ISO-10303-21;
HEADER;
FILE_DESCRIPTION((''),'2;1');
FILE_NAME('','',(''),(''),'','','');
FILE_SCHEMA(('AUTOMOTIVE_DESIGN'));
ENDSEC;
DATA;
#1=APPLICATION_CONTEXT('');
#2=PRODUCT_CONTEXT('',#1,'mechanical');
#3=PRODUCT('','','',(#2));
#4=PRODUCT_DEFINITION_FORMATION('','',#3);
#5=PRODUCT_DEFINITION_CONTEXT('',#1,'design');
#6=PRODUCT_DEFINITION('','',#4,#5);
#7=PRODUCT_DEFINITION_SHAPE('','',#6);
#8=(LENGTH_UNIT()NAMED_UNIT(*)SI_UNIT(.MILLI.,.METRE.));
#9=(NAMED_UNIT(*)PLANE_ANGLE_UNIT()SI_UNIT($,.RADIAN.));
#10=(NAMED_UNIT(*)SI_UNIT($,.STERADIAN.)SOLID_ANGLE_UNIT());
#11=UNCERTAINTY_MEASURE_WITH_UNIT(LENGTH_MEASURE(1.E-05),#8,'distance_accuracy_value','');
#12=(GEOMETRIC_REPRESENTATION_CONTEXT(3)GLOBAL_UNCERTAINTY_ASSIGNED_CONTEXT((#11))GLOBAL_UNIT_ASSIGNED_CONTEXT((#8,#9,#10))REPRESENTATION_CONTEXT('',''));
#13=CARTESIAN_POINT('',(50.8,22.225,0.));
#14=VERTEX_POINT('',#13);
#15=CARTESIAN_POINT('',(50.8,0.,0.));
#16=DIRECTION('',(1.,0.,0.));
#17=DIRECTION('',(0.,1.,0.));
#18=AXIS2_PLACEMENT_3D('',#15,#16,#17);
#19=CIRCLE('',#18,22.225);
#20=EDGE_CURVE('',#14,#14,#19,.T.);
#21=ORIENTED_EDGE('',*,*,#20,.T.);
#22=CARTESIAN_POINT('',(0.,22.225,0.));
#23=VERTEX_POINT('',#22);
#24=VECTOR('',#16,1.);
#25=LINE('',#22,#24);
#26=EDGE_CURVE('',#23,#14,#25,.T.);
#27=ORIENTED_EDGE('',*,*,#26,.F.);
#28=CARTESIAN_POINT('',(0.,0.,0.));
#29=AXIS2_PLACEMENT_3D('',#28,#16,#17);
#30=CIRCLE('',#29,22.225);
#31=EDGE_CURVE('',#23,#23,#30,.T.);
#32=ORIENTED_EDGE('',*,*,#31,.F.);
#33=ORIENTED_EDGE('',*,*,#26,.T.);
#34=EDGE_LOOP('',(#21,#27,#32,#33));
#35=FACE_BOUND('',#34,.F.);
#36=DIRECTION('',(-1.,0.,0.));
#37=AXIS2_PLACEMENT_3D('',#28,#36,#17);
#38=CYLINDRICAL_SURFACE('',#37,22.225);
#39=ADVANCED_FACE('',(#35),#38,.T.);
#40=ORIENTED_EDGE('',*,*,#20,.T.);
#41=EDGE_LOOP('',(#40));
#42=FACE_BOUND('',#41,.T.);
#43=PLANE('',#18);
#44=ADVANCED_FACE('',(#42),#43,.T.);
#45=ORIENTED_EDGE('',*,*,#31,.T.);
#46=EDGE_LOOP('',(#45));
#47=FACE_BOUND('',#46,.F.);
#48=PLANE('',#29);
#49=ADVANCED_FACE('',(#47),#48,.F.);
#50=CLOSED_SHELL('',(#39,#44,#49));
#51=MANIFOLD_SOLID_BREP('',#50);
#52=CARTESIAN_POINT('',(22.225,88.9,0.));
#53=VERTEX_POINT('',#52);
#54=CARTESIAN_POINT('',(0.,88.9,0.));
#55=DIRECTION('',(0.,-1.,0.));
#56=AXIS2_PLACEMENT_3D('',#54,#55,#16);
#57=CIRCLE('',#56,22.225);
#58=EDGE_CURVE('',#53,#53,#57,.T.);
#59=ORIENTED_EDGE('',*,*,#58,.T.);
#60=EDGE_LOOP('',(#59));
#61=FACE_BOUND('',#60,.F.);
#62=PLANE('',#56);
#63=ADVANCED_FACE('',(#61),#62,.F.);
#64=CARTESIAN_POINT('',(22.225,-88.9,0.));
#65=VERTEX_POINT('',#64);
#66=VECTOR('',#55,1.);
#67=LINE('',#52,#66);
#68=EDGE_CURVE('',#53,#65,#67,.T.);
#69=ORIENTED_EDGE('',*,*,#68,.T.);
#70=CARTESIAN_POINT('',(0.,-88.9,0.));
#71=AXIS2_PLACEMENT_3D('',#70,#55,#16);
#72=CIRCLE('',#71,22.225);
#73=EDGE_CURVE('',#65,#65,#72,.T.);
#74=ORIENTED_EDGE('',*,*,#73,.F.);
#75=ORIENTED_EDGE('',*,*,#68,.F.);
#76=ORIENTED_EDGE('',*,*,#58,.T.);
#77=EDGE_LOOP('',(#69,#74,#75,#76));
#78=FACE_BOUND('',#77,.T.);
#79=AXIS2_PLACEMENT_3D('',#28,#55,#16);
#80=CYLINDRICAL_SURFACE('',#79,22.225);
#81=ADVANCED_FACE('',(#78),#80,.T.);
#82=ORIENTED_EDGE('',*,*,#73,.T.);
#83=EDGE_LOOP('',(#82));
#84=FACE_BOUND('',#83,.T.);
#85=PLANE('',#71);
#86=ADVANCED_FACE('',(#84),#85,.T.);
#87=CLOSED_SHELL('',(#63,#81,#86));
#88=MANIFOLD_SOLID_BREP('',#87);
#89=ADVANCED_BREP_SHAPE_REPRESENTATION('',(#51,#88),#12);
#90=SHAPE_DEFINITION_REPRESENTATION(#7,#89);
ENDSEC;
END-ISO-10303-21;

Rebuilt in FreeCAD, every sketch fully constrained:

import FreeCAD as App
import Part
import Sketcher
Q = App.Units.Quantity

doc = App.newDocument("Part")
body = doc.addObject("PartDesign::Body", "Body")

sketch1 = doc.addObject("Sketcher::SketchObject", "Sketch")
body.addObject(sketch1)
sketch1.AttachmentSupport = (doc.XZ_Plane, [""])
sketch1.MapMode = "FlatFace"
sketch1.addGeometry(Part.Circle(App.Vector(0, 0, 0), App.Vector(0, 0, 1), 22.225), False)
sketch1.addConstraint([
    Sketcher.Constraint("Coincident", 0, 3, -1, 1),
    Sketcher.Constraint("Diameter", 0, Q("1.75 in")),
])
pad1 = doc.addObject("PartDesign::Pad", "Pad")
body.addObject(pad1)
pad1.Profile = sketch1
pad1.Length = Q("7 in")
pad1.Midplane = True
body2 = doc.addObject("PartDesign::Body", "Body001")

sketch2 = doc.addObject("Sketcher::SketchObject", "Sketch001")
body2.addObject(sketch2)
sketch2.AttachmentSupport = (doc.getObject("YZ_Plane001"), [""])
sketch2.MapMode = "FlatFace"
sketch2.addGeometry(Part.Circle(App.Vector(0, 0, 0), App.Vector(0, 0, 1), 22.225), False)
sketch2.addConstraint([
    Sketcher.Constraint("Coincident", 0, 3, -1, 1),
    Sketcher.Constraint("Diameter", 0, Q("1.75 in")),
])
pad2 = doc.addObject("PartDesign::Pad", "Pad001")
body2.addObject(pad2)
pad2.Profile = sketch2
pad2.Length = Q("2 in")

doc.recompute()
